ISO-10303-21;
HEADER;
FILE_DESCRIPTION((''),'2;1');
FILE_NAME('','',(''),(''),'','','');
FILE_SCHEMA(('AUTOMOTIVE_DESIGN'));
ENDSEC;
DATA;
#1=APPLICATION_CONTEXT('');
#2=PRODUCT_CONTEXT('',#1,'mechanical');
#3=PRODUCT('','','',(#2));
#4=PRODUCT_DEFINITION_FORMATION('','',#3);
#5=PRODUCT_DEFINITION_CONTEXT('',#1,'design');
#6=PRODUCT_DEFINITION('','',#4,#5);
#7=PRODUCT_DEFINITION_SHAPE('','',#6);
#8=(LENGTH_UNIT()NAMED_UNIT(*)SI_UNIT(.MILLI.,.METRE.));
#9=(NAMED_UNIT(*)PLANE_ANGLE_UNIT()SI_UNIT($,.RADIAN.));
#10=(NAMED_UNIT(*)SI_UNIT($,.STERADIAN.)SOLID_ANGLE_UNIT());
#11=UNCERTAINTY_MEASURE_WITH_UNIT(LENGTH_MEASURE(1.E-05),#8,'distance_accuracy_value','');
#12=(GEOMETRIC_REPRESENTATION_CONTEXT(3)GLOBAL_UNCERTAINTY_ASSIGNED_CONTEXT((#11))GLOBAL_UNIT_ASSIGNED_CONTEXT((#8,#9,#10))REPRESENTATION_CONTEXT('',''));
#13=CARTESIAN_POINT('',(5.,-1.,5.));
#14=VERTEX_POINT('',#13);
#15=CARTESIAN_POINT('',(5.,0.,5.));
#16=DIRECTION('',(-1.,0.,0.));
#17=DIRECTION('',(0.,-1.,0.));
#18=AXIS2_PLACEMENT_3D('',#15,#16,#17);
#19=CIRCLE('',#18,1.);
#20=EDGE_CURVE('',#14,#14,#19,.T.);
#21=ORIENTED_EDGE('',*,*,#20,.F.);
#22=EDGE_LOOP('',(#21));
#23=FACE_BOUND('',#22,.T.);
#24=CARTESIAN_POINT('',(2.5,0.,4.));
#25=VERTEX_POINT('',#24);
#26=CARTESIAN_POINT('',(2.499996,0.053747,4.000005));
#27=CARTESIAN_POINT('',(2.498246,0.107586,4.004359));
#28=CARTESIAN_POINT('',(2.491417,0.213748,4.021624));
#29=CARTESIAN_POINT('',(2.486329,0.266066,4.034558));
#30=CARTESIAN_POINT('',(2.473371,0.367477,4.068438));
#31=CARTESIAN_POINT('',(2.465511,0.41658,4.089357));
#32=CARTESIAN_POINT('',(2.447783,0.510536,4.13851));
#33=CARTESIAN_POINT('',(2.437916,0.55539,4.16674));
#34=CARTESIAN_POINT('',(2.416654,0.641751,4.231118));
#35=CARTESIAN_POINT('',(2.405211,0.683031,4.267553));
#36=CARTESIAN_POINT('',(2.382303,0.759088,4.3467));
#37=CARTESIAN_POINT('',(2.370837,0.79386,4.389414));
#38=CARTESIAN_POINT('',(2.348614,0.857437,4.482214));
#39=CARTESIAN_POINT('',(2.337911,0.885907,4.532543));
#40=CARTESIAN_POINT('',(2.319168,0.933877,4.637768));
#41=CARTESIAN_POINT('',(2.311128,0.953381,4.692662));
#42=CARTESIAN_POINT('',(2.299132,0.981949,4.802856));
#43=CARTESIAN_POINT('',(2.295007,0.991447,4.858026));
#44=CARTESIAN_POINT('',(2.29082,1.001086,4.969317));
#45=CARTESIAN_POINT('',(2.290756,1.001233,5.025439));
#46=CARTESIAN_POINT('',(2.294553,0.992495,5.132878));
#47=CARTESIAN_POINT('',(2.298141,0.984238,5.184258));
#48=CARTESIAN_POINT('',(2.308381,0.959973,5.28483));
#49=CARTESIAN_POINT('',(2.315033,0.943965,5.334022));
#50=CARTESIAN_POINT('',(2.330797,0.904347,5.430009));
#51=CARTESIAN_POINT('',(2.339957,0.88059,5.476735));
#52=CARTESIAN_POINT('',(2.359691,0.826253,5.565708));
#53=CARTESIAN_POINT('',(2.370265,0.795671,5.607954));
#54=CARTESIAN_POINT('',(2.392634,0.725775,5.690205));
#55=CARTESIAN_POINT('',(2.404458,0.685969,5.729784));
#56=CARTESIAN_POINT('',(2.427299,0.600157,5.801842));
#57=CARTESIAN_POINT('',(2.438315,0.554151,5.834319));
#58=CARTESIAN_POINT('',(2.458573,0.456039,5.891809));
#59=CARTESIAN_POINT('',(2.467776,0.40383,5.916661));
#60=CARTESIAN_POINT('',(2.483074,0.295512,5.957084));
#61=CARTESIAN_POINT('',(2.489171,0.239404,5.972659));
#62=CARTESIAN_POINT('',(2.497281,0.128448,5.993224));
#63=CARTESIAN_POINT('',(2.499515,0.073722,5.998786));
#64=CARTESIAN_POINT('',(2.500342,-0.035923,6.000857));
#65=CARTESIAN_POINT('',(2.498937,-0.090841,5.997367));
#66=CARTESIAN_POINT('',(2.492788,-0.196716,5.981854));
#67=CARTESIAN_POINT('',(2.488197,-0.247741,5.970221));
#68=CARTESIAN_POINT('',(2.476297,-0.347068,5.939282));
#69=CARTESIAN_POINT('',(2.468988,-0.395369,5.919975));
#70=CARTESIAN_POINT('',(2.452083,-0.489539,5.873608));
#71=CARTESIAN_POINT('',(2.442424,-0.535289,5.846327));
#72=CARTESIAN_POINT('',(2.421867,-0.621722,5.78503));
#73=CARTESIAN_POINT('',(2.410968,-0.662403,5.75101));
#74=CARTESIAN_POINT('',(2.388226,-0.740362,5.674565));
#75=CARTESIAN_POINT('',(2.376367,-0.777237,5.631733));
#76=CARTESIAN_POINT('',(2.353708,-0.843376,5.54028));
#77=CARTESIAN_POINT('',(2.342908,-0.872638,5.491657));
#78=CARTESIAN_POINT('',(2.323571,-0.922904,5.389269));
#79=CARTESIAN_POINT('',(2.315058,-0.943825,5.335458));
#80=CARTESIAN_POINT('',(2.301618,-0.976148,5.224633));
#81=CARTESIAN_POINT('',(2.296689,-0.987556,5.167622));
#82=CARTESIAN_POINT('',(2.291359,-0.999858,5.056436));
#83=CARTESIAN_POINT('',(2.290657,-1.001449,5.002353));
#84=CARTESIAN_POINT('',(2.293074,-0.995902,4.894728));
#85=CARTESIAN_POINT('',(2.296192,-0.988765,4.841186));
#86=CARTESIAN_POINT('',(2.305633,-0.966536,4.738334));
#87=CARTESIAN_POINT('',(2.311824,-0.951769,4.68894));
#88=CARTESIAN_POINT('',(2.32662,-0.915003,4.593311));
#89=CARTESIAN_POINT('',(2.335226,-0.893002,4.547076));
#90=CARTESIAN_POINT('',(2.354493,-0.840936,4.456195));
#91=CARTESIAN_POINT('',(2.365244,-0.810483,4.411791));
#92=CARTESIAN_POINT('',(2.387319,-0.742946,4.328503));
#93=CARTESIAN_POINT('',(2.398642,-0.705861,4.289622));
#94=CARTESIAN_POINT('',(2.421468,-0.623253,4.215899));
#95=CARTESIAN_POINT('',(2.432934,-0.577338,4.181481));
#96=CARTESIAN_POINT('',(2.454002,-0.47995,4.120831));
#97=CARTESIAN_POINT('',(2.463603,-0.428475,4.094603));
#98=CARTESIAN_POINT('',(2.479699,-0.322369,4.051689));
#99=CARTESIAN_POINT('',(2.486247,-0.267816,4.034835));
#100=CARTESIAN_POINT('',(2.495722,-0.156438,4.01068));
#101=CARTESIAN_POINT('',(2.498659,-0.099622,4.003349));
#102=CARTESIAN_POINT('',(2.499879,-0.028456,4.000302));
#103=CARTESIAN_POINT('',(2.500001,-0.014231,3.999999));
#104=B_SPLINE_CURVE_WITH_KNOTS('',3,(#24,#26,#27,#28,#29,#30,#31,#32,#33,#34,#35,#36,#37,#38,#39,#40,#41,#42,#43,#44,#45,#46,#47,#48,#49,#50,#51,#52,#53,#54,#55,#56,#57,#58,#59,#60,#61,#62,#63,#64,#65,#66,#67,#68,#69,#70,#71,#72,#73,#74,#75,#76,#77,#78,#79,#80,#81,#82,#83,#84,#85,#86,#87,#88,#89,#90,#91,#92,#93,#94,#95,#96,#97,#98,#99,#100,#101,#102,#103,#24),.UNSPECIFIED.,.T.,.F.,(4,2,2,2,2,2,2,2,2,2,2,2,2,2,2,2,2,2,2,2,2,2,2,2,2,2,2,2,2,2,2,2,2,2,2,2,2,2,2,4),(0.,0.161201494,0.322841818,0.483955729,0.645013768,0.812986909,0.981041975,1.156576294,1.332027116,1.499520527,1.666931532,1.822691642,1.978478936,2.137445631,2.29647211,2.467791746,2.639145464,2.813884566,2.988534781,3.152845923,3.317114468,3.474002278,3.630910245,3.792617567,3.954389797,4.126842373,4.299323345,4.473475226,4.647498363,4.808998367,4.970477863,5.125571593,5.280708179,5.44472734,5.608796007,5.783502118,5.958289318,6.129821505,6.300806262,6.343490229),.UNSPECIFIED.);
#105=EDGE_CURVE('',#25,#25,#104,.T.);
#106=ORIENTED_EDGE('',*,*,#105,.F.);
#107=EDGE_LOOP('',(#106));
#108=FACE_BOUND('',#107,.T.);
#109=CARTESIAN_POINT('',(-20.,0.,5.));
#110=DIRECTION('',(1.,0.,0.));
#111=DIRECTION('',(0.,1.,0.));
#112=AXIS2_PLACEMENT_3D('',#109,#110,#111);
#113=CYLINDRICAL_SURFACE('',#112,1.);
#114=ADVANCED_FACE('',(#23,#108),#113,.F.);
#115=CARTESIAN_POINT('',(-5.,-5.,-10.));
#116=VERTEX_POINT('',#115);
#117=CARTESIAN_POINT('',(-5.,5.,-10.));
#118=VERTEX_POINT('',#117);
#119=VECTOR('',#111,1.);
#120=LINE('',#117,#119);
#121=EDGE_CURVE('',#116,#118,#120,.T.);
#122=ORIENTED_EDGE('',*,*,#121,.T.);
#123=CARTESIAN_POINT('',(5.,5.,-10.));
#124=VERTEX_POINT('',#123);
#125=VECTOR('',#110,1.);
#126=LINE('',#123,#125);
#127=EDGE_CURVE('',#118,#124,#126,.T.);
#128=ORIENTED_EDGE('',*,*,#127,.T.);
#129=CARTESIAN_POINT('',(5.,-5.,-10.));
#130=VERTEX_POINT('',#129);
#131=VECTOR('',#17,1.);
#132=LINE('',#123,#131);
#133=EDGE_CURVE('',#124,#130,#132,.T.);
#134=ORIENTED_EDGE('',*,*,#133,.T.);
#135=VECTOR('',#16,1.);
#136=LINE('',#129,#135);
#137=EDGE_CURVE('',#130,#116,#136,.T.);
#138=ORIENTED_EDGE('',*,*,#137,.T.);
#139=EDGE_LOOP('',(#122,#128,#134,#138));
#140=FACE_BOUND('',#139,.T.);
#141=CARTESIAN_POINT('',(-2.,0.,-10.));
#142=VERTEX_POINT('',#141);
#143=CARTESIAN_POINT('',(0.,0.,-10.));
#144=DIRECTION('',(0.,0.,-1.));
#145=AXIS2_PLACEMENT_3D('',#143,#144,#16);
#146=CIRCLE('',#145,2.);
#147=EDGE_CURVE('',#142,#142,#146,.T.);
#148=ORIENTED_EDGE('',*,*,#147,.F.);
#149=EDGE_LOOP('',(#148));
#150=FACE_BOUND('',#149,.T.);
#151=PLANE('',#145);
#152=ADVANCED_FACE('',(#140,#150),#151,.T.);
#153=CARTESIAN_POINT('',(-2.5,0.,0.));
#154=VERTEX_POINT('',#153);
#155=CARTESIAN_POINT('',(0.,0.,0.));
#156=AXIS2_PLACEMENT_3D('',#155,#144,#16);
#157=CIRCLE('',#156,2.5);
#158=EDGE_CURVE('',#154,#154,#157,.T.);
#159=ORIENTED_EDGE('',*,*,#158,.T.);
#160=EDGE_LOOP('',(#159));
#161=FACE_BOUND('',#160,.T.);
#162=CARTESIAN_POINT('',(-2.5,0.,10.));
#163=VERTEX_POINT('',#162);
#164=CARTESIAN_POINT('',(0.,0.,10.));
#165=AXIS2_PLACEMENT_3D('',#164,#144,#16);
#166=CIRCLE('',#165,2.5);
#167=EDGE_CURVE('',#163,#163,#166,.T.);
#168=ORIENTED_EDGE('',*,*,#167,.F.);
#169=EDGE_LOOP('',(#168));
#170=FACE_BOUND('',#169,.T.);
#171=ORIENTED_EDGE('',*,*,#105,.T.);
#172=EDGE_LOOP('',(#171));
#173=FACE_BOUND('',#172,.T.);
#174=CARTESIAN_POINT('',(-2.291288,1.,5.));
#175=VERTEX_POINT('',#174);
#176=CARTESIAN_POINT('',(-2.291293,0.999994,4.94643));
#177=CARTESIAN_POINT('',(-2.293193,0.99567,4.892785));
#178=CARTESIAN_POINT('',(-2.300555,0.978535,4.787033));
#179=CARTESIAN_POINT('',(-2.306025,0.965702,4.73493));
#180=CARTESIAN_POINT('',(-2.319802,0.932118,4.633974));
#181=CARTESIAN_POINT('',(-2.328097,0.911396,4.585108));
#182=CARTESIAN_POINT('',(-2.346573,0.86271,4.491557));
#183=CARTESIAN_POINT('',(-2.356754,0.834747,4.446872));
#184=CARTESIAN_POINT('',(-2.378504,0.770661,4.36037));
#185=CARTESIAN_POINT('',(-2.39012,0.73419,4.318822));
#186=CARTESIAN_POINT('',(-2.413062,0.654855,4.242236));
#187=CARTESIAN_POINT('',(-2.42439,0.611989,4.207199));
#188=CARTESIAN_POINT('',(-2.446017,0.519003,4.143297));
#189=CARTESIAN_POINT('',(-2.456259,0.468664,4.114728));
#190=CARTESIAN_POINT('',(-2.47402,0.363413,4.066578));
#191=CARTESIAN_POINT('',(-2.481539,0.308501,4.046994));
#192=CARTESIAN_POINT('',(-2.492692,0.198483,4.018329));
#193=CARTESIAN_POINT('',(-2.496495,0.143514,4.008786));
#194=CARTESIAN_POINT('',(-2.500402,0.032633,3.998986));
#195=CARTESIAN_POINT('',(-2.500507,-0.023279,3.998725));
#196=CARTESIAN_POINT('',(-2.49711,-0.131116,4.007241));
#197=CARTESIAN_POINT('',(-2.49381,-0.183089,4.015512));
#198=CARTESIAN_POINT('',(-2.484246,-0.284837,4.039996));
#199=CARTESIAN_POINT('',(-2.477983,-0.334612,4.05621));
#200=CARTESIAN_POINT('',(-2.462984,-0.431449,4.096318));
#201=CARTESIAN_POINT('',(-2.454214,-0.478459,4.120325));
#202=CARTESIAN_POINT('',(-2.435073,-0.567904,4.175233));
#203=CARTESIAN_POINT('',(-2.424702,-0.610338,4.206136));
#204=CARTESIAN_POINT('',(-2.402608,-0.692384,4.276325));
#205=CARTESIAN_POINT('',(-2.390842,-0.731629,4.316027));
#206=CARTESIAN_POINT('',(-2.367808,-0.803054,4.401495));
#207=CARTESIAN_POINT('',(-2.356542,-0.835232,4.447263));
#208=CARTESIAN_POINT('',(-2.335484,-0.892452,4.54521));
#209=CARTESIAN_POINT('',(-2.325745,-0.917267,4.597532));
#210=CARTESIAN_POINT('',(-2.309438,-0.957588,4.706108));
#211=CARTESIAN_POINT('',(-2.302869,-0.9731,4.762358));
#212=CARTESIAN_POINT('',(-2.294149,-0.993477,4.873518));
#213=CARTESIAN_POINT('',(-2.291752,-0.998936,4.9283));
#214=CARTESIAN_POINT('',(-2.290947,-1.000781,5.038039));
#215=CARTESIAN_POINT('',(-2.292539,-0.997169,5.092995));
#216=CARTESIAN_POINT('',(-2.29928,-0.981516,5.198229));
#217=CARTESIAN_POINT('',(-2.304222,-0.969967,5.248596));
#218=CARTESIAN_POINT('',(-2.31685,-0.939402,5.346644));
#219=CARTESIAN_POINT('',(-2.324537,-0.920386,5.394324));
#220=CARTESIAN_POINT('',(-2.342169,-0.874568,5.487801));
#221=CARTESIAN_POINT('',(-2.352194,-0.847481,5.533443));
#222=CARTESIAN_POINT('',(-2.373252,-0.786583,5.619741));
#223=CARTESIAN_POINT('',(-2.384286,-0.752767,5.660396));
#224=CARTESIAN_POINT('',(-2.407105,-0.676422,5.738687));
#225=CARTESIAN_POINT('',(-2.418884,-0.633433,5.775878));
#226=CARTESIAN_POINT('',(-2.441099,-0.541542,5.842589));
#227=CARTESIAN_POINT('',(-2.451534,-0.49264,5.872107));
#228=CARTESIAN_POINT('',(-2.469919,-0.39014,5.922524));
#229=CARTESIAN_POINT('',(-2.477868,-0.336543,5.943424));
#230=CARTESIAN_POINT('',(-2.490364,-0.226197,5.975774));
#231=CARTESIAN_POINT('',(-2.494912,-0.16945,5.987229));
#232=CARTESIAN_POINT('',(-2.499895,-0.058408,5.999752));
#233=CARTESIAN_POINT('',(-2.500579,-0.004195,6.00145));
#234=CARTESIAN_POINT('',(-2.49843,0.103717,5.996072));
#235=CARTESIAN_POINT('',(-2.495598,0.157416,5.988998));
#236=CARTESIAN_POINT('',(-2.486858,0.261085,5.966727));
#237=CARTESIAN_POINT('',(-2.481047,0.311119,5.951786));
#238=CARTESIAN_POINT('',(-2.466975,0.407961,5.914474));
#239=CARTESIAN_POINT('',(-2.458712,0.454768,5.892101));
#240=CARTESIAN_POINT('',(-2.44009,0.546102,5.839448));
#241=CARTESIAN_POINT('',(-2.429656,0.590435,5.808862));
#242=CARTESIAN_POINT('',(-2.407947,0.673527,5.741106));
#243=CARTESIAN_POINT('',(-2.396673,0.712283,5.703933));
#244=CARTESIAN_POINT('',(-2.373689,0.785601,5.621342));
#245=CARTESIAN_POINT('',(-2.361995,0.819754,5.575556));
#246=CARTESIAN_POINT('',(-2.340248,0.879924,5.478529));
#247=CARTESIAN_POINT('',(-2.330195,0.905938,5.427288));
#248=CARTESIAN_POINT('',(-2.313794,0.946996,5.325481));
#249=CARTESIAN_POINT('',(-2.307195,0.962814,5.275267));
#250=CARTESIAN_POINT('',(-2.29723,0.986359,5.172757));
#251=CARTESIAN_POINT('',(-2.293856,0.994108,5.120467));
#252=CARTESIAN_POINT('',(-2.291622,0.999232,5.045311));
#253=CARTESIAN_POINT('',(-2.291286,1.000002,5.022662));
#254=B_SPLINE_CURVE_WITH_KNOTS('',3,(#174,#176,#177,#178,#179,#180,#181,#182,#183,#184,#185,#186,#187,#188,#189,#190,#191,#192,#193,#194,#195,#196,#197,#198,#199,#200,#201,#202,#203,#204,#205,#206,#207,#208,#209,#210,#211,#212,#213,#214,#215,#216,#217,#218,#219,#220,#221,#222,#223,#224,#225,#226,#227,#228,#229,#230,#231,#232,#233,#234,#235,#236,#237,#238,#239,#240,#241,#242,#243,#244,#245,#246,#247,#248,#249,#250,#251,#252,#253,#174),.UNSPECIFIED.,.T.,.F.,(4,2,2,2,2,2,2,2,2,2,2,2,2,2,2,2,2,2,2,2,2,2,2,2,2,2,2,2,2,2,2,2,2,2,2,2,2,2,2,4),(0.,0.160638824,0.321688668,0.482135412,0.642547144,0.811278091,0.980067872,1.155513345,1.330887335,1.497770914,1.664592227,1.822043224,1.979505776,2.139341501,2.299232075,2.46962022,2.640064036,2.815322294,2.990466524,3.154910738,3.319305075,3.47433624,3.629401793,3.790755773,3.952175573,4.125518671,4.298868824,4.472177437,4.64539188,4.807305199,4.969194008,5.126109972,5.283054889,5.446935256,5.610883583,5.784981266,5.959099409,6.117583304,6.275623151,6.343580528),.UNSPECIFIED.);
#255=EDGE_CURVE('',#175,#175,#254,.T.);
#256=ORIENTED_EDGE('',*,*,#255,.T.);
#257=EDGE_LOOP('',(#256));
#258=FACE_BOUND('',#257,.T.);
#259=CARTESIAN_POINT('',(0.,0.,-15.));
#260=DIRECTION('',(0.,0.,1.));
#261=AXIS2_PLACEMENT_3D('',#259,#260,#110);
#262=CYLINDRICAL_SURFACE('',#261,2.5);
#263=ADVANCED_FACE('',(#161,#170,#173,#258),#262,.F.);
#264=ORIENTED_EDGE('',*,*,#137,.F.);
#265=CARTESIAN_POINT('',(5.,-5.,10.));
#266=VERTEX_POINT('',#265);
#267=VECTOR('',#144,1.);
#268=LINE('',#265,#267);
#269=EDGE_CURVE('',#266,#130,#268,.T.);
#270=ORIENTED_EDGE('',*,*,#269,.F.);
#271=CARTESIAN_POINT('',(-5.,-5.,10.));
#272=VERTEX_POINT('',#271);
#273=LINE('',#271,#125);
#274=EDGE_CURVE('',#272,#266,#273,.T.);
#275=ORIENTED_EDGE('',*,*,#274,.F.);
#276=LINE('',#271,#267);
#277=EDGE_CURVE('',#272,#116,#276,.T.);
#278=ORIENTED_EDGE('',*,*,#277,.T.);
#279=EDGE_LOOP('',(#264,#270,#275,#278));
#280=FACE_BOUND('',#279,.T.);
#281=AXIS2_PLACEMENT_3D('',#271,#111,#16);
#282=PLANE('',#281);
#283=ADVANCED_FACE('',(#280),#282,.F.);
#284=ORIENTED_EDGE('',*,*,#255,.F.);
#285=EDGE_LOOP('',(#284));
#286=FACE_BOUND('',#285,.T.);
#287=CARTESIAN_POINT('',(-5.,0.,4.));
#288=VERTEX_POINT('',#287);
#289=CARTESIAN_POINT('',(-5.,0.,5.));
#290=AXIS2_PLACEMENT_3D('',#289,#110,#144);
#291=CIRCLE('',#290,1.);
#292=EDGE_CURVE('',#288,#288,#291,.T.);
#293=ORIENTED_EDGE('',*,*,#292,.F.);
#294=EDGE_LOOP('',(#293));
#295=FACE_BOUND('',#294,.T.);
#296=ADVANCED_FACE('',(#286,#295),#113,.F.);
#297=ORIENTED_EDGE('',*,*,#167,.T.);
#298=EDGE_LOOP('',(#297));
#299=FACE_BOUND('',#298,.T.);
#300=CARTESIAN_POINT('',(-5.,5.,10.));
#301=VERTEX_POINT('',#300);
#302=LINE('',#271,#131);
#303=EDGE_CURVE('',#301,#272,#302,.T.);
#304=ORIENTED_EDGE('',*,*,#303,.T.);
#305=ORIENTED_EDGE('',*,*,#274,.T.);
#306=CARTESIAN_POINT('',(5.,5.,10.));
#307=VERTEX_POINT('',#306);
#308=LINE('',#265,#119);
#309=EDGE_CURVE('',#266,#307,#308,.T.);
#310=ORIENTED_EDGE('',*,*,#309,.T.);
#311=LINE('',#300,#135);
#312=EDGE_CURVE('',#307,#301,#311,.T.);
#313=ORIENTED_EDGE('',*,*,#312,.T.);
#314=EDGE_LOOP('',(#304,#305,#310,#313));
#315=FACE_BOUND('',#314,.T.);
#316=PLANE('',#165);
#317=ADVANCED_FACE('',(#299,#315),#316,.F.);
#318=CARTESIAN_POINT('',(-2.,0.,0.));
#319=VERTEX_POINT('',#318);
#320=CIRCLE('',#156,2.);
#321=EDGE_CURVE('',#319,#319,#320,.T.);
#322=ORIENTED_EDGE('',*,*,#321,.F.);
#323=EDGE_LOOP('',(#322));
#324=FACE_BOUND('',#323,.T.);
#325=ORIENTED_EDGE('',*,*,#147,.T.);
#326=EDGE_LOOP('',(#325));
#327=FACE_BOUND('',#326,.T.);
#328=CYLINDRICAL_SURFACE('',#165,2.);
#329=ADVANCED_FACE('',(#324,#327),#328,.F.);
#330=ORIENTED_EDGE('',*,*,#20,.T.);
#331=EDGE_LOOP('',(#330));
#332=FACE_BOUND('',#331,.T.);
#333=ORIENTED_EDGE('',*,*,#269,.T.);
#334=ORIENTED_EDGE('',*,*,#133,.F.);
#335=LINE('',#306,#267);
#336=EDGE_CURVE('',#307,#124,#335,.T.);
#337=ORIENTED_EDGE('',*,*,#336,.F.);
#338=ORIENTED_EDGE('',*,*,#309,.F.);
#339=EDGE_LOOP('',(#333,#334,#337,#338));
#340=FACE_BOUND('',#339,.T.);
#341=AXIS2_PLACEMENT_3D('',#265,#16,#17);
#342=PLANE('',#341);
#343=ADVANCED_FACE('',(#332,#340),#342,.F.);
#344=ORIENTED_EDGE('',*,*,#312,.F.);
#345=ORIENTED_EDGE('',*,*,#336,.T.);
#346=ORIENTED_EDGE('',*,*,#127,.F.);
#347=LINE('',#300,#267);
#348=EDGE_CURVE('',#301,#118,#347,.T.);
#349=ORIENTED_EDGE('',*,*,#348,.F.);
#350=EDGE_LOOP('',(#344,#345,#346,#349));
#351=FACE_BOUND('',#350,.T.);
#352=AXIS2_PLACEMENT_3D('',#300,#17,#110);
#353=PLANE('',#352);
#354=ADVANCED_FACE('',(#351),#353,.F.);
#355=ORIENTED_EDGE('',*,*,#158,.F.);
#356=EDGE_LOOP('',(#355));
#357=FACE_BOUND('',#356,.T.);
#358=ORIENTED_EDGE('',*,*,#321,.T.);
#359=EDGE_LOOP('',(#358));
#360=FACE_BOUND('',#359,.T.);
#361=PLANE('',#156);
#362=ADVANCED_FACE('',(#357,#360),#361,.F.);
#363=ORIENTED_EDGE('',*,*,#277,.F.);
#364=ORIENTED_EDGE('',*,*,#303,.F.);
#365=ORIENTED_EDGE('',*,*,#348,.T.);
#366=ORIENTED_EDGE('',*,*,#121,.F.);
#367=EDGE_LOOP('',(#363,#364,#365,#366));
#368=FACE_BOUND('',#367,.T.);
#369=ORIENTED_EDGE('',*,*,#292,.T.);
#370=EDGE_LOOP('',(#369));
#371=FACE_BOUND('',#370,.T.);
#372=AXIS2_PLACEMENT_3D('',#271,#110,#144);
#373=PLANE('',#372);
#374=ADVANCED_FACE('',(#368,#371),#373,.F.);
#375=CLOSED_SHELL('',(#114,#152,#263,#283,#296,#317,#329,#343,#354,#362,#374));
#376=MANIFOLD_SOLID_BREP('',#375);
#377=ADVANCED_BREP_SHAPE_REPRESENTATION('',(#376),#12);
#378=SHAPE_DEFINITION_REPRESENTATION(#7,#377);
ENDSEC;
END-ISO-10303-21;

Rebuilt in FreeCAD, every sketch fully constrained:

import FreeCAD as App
import Part
import Sketcher
from FreeCAD import Vector

doc = App.newDocument("Part")
body = doc.addObject("PartDesign::Body", "Body")

sketch1 = body.newObject("Sketcher::SketchObject", "Sketch")
sketch1.AttachmentSupport = (doc.getObject("XY_Plane"), [""])
sketch1.MapMode = "FlatFace"
sketch1.addGeometry([
    Part.LineSegment(Vector(-5, 5, 0), Vector(-5, -5, 0)),
    Part.LineSegment(Vector(-5, -5, 0), Vector(5, -5, 0)),
    Part.LineSegment(Vector(5, -5, 0), Vector(5, 5, 0)),
    Part.LineSegment(Vector(5, 5, 0), Vector(-5, 5, 0)),
], False)
sketch1.addConstraint([
    Sketcher.Constraint("Coincident", 0, 2, 1, 1),
    Sketcher.Constraint("Coincident", 1, 2, 2, 1),
    Sketcher.Constraint("Coincident", 2, 2, 3, 1),
    Sketcher.Constraint("Coincident", 3, 2, 0, 1),
    Sketcher.Constraint("Vertical", 0),
    Sketcher.Constraint("Horizontal", 1),
    Sketcher.Constraint("Vertical", 2),
    Sketcher.Constraint("Horizontal", 3),
    Sketcher.Constraint("Symmetric", 0, 2, 2, 2, -1, 1),
    Sketcher.Constraint("Equal", 3, 0),
    Sketcher.Constraint("DistanceX", 1, 1, 1, 2, 10.0),
])
pad1 = body.newObject("PartDesign::Pad", "Pad")
pad1.Profile = sketch1
pad1.Length = 10

sketch2 = body.newObject("Sketcher::SketchObject", "Sketch001")
sketch2.AttachmentSupport = (doc.getObject("XY_Plane"), [""])
sketch2.MapMode = "FlatFace"
sketch2.AttachmentOffset = App.Placement(Vector(0, 0, 10), App.Rotation())
sketch2.addGeometry(Part.Circle(Vector(0, 0, 0), Vector(0, 0, 1), 2.5), False)
sketch2.addConstraint([
    Sketcher.Constraint("Coincident", 0, 3, -1, 1),
    Sketcher.Constraint("Diameter", 0, 5.0),
])
pad2 = body.newObject("PartDesign::Pad", "Pad001")
pad2.Profile = sketch2
pad2.Length = 5

sketch3 = body.newObject("Sketcher::SketchObject", "Sketch002")
sketch3.AttachmentSupport = (doc.getObject("YZ_Plane"), [""])
sketch3.MapMode = "FlatFace"
sketch3.AttachmentOffset = App.Placement(Vector(0, 0, 5), App.Rotation())
sketch3.addGeometry(Part.Circle(Vector(0, 5, 0), Vector(0, 0, 1), 1), False)
sketch3.addConstraint([
    Sketcher.Constraint("PointOnObject", 0, 3, -2),
    Sketcher.Constraint("Diameter", 0, 2.0),
    Sketcher.Constraint("DistanceY", -1, 1, 0, 3, 5.0),
])
pad3 = body.newObject("PartDesign::Pad", "Pad002")
pad3.Profile = sketch3
pad3.Length = 5

sketch4 = body.newObject("Sketcher::SketchObject", "Sketch003")
sketch4.AttachmentSupport = (doc.getObject("XY_Plane"), [""])
sketch4.MapMode = "FlatFace"
sketch4.AttachmentOffset = App.Placement(Vector(0, 0, -15), App.Rotation())
sketch4.addGeometry(Part.Circle(Vector(0, 0, 0), Vector(0, 0, 1), 2.5), False)
sketch4.addConstraint([
    Sketcher.Constraint("Coincident", 0, 3, -1, 1),
    Sketcher.Constraint("Diameter", 0, 5.0),
])
pocket1 = body.newObject("PartDesign::Pocket", "Pocket")
pocket1.Profile = sketch4
pocket1.Length = 30
pocket1.Reversed = True

sketch5 = body.newObject("Sketcher::SketchObject", "Sketch004")
sketch5.AttachmentSupport = (doc.getObject("YZ_Plane"), [""])
sketch5.MapMode = "FlatFace"
sketch5.AttachmentOffset = App.Placement(Vector(0, 0, -20), App.Rotation())
sketch5.addGeometry(Part.Circle(Vector(0, 5, 0), Vector(0, 0, 1), 1), False)
sketch5.addConstraint([
    Sketcher.Constraint("PointOnObject", 0, 3, -2),
    Sketcher.Constraint("Diameter", 0, 2.0),
    Sketcher.Constraint("DistanceY", -1, 1, 0, 3, 5.0),
])
pocket2 = body.newObject("PartDesign::Pocket", "Pocket001")
pocket2.Profile = sketch5
pocket2.Length = 30
pocket2.Reversed = True

sketch6 = body.newObject("Sketcher::SketchObject", "Sketch005")
sketch6.AttachmentSupport = (doc.getObject("XY_Plane"), [""])
sketch6.MapMode = "FlatFace"
sketch6.addGeometry([
    Part.LineSegment(Vector(5, 5, 0), Vector(5, -5, 0)),
    Part.LineSegment(Vector(5, -5, 0), Vector(-5, -5, 0)),
    Part.LineSegment(Vector(-5, -5, 0), Vector(-5, 5, 0)),
    Part.LineSegment(Vector(-5, 5, 0), Vector(5, 5, 0)),
], False)
sketch6.addConstraint([
    Sketcher.Constraint("Coincident", 0, 2, 1, 1),
    Sketcher.Constraint("Coincident", 1, 2, 2, 1),
    Sketcher.Constraint("Coincident", 2, 2, 3, 1),
    Sketcher.Constraint("Coincident", 3, 2, 0, 1),
    Sketcher.Constraint("Vertical", 0),
    Sketcher.Constraint("Horizontal", 1),
    Sketcher.Constraint("Vertical", 2),
    Sketcher.Constraint("Horizontal", 3),
    Sketcher.Constraint("Symmetric", 0, 2, 2, 2, -1, 1),
    Sketcher.Constraint("Equal", 3, 0),
    Sketcher.Constraint("DistanceX", 1, 2, 1, 1, 10.0),
])
pad4 = body.newObject("PartDesign::Pad", "Pad003")
pad4.Profile = sketch6
pad4.Length = 10
pad4.Reversed = True

sketch7 = body.newObject("Sketcher::SketchObject", "Sketch006")
sketch7.AttachmentSupport = (doc.getObject("XY_Plane"), [""])
sketch7.MapMode = "FlatFace"
sketch7.AttachmentOffset = App.Placement(Vector(0, 0, -10), App.Rotation())
sketch7.addGeometry(Part.Circle(Vector(0, 0, 0), Vector(0, 0, 1), 2), False)
sketch7.addConstraint([
    Sketcher.Constraint("Coincident", 0, 3, -1, 1),
    Sketcher.Constraint("Diameter", 0, 4.0),
])
pocket3 = body.newObject("PartDesign::Pocket", "Pocket002")
pocket3.Profile = sketch7
pocket3.Length = 20
pocket3.Reversed = True

doc.recompute()
